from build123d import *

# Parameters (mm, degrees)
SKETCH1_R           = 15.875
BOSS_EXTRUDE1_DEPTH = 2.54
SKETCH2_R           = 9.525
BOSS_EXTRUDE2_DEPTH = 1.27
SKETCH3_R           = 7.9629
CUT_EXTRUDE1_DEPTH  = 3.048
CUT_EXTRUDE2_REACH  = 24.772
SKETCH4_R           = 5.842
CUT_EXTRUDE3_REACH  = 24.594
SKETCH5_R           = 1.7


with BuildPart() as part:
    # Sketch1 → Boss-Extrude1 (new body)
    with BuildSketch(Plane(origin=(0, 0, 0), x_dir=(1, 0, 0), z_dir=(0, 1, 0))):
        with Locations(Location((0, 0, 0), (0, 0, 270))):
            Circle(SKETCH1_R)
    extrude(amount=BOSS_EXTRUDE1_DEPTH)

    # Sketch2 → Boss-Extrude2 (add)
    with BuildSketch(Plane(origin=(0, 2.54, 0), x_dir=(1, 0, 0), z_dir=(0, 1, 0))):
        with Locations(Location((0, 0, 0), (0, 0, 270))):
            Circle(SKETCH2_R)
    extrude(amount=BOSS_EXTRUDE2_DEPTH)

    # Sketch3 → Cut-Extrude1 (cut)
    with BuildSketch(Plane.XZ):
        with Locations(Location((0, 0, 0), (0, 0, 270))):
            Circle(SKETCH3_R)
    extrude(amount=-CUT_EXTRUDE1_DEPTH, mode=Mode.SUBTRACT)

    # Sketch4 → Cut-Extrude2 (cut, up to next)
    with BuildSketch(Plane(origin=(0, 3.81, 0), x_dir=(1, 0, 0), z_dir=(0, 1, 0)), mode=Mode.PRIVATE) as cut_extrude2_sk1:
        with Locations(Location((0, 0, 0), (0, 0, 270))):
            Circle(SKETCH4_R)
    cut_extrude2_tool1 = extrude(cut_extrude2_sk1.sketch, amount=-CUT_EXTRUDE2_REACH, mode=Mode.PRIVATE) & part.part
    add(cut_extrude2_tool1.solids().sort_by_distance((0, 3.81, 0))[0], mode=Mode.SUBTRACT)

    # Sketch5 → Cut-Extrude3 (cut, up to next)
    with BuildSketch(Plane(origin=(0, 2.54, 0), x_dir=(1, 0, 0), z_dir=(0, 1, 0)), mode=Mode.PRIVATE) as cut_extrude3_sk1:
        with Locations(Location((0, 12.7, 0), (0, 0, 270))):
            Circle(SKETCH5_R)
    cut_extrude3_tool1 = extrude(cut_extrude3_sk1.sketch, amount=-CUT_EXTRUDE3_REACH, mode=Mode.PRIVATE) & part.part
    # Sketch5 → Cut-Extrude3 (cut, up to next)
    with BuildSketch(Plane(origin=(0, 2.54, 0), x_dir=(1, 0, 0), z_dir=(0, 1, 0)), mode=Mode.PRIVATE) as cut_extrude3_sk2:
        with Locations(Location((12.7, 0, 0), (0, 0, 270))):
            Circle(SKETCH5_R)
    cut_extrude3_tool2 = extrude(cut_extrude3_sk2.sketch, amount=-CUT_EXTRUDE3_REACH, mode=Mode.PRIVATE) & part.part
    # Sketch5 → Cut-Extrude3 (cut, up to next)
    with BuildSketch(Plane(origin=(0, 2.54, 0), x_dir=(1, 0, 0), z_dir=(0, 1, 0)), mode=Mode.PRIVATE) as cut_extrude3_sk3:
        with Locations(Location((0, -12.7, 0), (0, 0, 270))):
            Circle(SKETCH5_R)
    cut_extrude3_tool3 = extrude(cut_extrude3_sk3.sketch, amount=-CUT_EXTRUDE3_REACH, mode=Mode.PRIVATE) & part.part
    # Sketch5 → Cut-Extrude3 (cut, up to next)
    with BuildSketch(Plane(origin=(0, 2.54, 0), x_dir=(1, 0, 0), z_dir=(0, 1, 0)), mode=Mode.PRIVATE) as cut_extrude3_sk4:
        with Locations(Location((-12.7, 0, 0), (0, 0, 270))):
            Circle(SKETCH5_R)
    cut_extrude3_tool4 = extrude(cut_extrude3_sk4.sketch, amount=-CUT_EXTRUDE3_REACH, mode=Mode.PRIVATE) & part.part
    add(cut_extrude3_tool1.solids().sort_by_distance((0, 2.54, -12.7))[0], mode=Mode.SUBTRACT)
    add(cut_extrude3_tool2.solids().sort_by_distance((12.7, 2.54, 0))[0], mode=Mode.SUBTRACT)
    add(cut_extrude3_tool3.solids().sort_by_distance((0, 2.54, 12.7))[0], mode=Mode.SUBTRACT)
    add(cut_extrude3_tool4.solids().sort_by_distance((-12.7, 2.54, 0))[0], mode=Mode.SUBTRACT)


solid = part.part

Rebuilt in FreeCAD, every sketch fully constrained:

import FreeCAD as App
import Part
import Sketcher
from FreeCAD import Vector
Q = App.Units.Quantity

doc = App.newDocument("Part")
body = doc.addObject("PartDesign::Body", "Body")

# Sketch on XZ plane
sketch1 = body.newObject("Sketcher::SketchObject", "Sketch")
sketch1.AttachmentSupport = (doc.getObject("XZ_Plane"), [""])
sketch1.MapMode = "FlatFace"
sketch1.addGeometry(Part.Circle(Vector(0, 0, 0), Vector(0, 0, 1), 16), False)
sketch1.addConstraint([
    Sketcher.Constraint("Coincident", 0, 3, -1, 1),
    Sketcher.Constraint("Diameter", 0, Q("1.25 in")),
])
pad1 = body.newObject("PartDesign::Pad", "Pad")
pad1.Profile = sketch1
pad1.Length = Q("0.1 in")
pad1.Reversed = True

# Sketch on XZ plane
sketch2 = body.newObject("Sketcher::SketchObject", "Sketch001")
sketch2.AttachmentSupport = (doc.getObject("XZ_Plane"), [""])
sketch2.MapMode = "FlatFace"
sketch2.AttachmentOffset = App.Placement(Vector(0, 0, -0.1 * 25.4), App.Rotation())
sketch2.addGeometry(Part.Circle(Vector(0, 0, 0), Vector(0, 0, 1), 10), False)
sketch2.addConstraint([
    Sketcher.Constraint("Coincident", 0, 3, -1, 1),
    Sketcher.Constraint("Diameter", 0, Q("0.75 in")),
])
pad2 = body.newObject("PartDesign::Pad", "Pad001")
pad2.Profile = sketch2
pad2.Length = Q("0.05 in")
pad2.Reversed = True

# Sketch on XZ plane
sketch3 = body.newObject("Sketcher::SketchObject", "Sketch002")
sketch3.AttachmentSupport = (doc.getObject("XZ_Plane"), [""])
sketch3.MapMode = "FlatFace"
sketch3.addGeometry(Part.Circle(Vector(0, 0, 0), Vector(0, 0, 1), 8), False)
sketch3.addConstraint([
    Sketcher.Constraint("Coincident", 0, 3, -1, 1),
    Sketcher.Constraint("Diameter", 0, Q("0.627 in")),
])
pocket1 = body.newObject("PartDesign::Pocket", "Pocket")
pocket1.Profile = sketch3
pocket1.Length = Q("0.12 in")

# Sketch on XZ plane
sketch4 = body.newObject("Sketcher::SketchObject", "Sketch003")
sketch4.AttachmentSupport = (doc.getObject("XZ_Plane"), [""])
sketch4.MapMode = "FlatFace"
sketch4.AttachmentOffset = App.Placement(Vector(0, 0, -0.15 * 25.4), App.Rotation())
sketch4.addGeometry(Part.Circle(Vector(0, 0, 0), Vector(0, 0, 1), 6), False)
sketch4.addConstraint([
    Sketcher.Constraint("Coincident", 0, 3, -1, 1),
    Sketcher.Constraint("Diameter", 0, Q("0.46 in")),
])
pocket2 = body.newObject("PartDesign::Pocket", "Pocket001")
pocket2.Profile = sketch4
pocket2.Type = "UpToFirst"
pocket2.Reversed = True

# Sketch on XZ plane
sketch5 = body.newObject("Sketcher::SketchObject", "Sketch004")
sketch5.AttachmentSupport = (doc.getObject("XZ_Plane"), [""])
sketch5.MapMode = "FlatFace"
sketch5.AttachmentOffset = App.Placement(Vector(0, 0, -0.1 * 25.4), App.Rotation())
sketch5.addGeometry(Part.Circle(Vector(0, -12.7, 0), Vector(0, 0, 1), 1.7), False)
sketch5.addConstraint([
    Sketcher.Constraint("PointOnObject", 0, 3, -2),
    Sketcher.Constraint("DistanceY", 0, 3, -1, 1, Q("0.5 in")),
    Sketcher.Constraint("Diameter", 0, Q("3.4 mm")),
])
pocket3 = body.newObject("PartDesign::Pocket", "Pocket002")
pocket3.Profile = sketch5
pocket3.Type = "UpToFirst"
pocket3.Reversed = True

# Sketch on XZ plane
sketch6 = body.newObject("Sketcher::SketchObject", "Sketch005")
sketch6.AttachmentSupport = (doc.getObject("XZ_Plane"), [""])
sketch6.MapMode = "FlatFace"
sketch6.AttachmentOffset = App.Placement(Vector(0, 0, -0.1 * 25.4), App.Rotation())
sketch6.addGeometry(Part.Circle(Vector(12.7, 0, 0), Vector(0, 0, 1), 1.7), False)
sketch6.addConstraint([
    Sketcher.Constraint("PointOnObject", 0, 3, -1),
    Sketcher.Constraint("DistanceX", -1, 1, 0, 3, Q("0.5 in")),
    Sketcher.Constraint("Diameter", 0, Q("3.4 mm")),
])
pocket4 = body.newObject("PartDesign::Pocket", "Pocket003")
pocket4.Profile = sketch6
pocket4.Type = "UpToFirst"
pocket4.Reversed = True

# Sketch on XZ plane
sketch7 = body.newObject("Sketcher::SketchObject", "Sketch006")
sketch7.AttachmentSupport = (doc.getObject("XZ_Plane"), [""])
sketch7.MapMode = "FlatFace"
sketch7.AttachmentOffset = App.Placement(Vector(0, 0, -0.1 * 25.4), App.Rotation())
sketch7.addGeometry(Part.Circle(Vector(0, 12.7, 0), Vector(0, 0, 1), 1.7), False)
sketch7.addConstraint([
    Sketcher.Constraint("PointOnObject", 0, 3, -2),
    Sketcher.Constraint("DistanceY", -1, 1, 0, 3, Q("0.5 in")),
    Sketcher.Constraint("Diameter", 0, Q("3.4 mm")),
])
pocket5 = body.newObject("PartDesign::Pocket", "Pocket004")
pocket5.Profile = sketch7
pocket5.Type = "UpToFirst"
pocket5.Reversed = True

# Sketch on XZ plane
sketch8 = body.newObject("Sketcher::SketchObject", "Sketch007")
sketch8.AttachmentSupport = (doc.getObject("XZ_Plane"), [""])
sketch8.MapMode = "FlatFace"
sketch8.AttachmentOffset = App.Placement(Vector(0, 0, -0.1 * 25.4), App.Rotation())
sketch8.addGeometry(Part.Circle(Vector(-12.7, 0, 0), Vector(0, 0, 1), 1.7), False)
sketch8.addConstraint([
    Sketcher.Constraint("PointOnObject", 0, 3, -1),
    Sketcher.Constraint("DistanceX", 0, 3, -1, 1, Q("0.5 in")),
    Sketcher.Constraint("Diameter", 0, Q("3.4 mm")),
])
pocket6 = body.newObject("PartDesign::Pocket", "Pocket005")
pocket6.Profile = sketch8
pocket6.Type = "UpToFirst"
pocket6.Reversed = True

doc.recompute()
